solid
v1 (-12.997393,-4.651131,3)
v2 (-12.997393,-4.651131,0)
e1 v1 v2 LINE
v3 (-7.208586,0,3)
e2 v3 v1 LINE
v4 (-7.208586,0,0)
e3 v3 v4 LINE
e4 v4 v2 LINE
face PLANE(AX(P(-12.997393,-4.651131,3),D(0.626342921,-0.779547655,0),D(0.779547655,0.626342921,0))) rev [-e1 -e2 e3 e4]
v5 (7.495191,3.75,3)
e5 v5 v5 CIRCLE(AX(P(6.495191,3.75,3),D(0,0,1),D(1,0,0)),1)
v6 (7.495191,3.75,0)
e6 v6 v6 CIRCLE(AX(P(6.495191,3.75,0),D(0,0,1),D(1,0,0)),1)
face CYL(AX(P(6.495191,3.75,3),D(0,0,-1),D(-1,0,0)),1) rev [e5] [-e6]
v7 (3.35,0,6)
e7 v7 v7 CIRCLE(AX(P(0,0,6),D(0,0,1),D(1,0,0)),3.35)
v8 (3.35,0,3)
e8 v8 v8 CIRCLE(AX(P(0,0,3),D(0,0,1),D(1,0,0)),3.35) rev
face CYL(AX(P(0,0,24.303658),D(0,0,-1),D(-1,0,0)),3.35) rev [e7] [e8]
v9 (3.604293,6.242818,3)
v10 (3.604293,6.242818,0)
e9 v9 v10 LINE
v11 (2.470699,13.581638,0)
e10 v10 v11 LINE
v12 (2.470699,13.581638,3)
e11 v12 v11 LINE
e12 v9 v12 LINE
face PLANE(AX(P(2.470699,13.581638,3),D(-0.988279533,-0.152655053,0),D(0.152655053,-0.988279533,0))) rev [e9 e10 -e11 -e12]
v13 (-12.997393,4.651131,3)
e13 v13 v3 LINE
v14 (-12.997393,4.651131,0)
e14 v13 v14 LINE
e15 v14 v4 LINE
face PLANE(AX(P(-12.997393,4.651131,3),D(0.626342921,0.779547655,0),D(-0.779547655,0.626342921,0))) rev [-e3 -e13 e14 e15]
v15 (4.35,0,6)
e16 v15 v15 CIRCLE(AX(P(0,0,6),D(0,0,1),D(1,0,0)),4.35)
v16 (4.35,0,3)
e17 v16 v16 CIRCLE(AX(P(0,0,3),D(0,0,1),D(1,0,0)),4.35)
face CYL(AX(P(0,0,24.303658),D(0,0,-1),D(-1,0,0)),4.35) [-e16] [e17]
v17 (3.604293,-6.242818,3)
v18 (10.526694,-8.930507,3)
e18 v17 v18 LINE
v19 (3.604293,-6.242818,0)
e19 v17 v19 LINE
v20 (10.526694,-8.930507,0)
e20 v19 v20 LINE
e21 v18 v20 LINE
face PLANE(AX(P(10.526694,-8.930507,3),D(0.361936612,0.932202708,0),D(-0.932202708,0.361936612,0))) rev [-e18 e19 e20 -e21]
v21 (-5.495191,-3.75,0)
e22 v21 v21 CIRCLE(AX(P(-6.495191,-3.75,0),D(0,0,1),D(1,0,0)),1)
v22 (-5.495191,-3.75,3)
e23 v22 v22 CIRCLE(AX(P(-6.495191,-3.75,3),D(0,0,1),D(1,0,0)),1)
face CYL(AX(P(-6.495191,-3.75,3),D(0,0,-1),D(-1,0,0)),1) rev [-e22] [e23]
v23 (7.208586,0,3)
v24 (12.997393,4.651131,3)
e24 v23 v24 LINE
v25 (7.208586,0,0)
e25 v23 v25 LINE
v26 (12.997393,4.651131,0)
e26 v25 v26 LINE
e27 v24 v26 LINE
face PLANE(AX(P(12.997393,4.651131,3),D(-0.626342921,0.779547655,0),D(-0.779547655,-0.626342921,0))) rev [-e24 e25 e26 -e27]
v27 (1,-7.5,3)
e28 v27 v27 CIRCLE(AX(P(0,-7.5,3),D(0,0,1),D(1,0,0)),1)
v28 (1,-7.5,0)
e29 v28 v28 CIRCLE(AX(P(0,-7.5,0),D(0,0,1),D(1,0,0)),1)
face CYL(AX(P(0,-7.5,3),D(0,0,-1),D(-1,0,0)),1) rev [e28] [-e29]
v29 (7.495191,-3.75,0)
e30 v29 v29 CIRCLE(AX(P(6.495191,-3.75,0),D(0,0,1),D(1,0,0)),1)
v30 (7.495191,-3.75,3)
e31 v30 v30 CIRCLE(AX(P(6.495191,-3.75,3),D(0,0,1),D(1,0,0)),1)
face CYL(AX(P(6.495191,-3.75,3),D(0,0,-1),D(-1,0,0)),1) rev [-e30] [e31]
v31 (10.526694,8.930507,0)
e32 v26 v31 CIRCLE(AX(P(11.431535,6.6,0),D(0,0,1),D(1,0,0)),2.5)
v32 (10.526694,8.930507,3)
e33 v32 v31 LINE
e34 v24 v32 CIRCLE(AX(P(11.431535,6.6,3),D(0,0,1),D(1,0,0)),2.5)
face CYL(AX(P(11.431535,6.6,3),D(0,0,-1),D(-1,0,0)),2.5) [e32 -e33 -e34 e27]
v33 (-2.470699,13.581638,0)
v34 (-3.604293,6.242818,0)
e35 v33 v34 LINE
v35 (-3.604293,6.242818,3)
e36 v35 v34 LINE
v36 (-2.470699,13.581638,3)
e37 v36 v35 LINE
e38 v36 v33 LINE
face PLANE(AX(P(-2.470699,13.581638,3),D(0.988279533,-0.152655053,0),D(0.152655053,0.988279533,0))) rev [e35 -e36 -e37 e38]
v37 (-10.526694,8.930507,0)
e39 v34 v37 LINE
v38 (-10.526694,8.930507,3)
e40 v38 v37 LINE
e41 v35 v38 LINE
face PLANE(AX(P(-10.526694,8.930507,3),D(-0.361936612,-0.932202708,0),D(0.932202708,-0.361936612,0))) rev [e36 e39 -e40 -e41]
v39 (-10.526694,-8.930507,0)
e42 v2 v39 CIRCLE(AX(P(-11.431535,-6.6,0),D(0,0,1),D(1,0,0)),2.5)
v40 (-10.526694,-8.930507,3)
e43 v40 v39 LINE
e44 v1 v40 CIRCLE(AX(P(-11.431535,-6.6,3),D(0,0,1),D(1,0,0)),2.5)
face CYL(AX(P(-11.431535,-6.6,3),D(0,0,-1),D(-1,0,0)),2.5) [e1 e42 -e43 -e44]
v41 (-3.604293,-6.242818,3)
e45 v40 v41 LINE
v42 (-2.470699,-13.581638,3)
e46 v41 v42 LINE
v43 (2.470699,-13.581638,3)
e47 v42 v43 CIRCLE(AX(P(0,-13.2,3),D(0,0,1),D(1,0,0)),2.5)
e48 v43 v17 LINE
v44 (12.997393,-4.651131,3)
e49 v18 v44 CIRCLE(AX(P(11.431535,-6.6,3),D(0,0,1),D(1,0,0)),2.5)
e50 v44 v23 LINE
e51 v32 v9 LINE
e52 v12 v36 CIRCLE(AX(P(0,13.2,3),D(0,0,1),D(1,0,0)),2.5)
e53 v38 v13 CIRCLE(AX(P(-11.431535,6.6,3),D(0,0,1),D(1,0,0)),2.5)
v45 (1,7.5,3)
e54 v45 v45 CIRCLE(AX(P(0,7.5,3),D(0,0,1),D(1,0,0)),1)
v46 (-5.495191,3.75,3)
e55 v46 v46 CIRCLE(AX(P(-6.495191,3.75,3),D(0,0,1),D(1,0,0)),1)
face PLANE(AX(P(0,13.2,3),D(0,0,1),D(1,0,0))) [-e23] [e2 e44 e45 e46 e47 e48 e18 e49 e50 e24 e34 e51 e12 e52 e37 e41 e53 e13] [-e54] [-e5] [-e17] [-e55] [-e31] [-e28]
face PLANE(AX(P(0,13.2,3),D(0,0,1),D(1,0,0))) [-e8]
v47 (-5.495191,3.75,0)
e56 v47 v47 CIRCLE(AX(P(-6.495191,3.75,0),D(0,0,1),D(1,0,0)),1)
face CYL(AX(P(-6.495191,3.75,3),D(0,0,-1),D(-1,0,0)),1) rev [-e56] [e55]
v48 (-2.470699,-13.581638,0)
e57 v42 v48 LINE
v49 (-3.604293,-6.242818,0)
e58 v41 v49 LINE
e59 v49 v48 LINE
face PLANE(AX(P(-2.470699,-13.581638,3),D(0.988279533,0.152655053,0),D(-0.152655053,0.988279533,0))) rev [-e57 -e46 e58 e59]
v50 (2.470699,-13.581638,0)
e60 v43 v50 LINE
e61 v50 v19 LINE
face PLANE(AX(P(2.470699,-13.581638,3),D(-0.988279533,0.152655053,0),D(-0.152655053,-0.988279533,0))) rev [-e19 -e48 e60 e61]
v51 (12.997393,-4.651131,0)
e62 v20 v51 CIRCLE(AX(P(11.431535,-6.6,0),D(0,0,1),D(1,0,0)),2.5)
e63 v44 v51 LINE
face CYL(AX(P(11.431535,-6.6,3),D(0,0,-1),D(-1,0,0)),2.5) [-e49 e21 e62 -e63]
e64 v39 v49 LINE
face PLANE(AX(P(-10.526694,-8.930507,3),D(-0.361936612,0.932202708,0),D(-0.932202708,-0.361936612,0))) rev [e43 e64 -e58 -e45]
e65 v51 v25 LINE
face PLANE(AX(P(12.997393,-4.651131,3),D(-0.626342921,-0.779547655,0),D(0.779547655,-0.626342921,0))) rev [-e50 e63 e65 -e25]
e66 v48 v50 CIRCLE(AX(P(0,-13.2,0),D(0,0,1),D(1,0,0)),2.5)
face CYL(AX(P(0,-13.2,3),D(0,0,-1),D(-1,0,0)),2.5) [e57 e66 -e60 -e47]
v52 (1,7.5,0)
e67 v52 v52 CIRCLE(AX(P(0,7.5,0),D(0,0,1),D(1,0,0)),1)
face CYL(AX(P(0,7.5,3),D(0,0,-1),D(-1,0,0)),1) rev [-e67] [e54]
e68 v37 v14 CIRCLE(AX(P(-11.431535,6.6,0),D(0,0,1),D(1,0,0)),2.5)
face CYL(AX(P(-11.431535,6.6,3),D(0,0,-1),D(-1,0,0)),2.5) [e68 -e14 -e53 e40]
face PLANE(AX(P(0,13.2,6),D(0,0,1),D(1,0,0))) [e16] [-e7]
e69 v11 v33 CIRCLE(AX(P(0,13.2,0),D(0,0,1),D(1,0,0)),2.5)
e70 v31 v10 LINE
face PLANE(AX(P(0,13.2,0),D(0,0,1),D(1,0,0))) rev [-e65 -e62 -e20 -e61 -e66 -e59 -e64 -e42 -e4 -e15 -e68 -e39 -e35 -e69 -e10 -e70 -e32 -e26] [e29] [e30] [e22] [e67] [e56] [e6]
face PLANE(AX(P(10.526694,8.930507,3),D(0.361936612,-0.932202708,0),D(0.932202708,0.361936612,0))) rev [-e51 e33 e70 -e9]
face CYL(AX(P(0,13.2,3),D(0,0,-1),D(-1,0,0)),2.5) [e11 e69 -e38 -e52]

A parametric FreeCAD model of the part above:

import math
import FreeCAD as App
import Part
import Sketcher
from FreeCAD import Vector

doc = App.newDocument("Part")
body = doc.addObject("PartDesign::Body", "Body")

# Sketch on XY plane
sketch1 = body.newObject("Sketcher::SketchObject", "Sketch")
sketch1.AttachmentSupport = (doc.getObject("XY_Plane"), [""])
sketch1.MapMode = "FlatFace"
sketch1.addGeometry(Part.LineSegment(Vector(-2.5, 13.6, 0), Vector(-3.6, 6.2, 0)), False)
sketch1.addGeometry(Part.LineSegment(Vector(-3.6, 6.2, 0), Vector(-10.5, 8.9, 0)), False)
sketch1.addGeometry(Part.ArcOfCircle(Part.Circle(Vector(-11.4, 6.6, 0), Vector(0, 0, 1), 2.5), math.radians(69), math.radians(231)), False)
sketch1.addGeometry(Part.LineSegment(Vector(-13, 4.7, 0), Vector(-7.2, 0, 0)), False)
sketch1.addGeometry(Part.LineSegment(Vector(-7.2, 0, 0), Vector(-13, -4.7, 0)), False)
sketch1.addGeometry(Part.ArcOfCircle(Part.Circle(Vector(-11.4, -6.6, 0), Vector(0, 0, 1), 2.5), math.radians(129), math.radians(291)), False)
sketch1.addGeometry(Part.LineSegment(Vector(-10.5, -8.9, 0), Vector(-3.6, -6.2, 0)), False)
sketch1.addGeometry(Part.LineSegment(Vector(-3.6, -6.2, 0), Vector(-2.5, -13.6, 0)), False)
sketch1.addGeometry(Part.ArcOfCircle(Part.Circle(Vector(0, -13.2, 0), Vector(0, 0, 1), 2.5), math.radians(-171), math.radians(-9)), False)
sketch1.addGeometry(Part.LineSegment(Vector(2.5, -13.6, 0), Vector(3.6, -6.2, 0)), False)
sketch1.addGeometry(Part.LineSegment(Vector(3.6, -6.2, 0), Vector(10.5, -8.9, 0)), False)
sketch1.addGeometry(Part.ArcOfCircle(Part.Circle(Vector(11.4, -6.6, 0), Vector(0, 0, 1), 2.5), math.radians(-111), math.radians(51)), False)
sketch1.addGeometry(Part.LineSegment(Vector(13, -4.7, 0), Vector(7.2, 0, 0)), False)
sketch1.addGeometry(Part.LineSegment(Vector(7.2, 0, 0), Vector(13, 4.7, 0)), False)
sketch1.addGeometry(Part.ArcOfCircle(Part.Circle(Vector(11.4, 6.6, 0), Vector(0, 0, 1), 2.5), math.radians(-51), math.radians(111)), False)
sketch1.addGeometry(Part.LineSegment(Vector(10.5, 8.9, 0), Vector(3.6, 6.2, 0)), False)
sketch1.addGeometry(Part.LineSegment(Vector(3.6, 6.2, 0), Vector(2.5, 13.6, 0)), False)
sketch1.addGeometry(Part.ArcOfCircle(Part.Circle(Vector(0, 13.2, 0), Vector(0, 0, 1), 2.5), math.radians(9), math.radians(171)), False)
sketch1.addGeometry(Part.Circle(Vector(-6.5, -3.8, 0), Vector(0, 0, 1), 1), False)
sketch1.addGeometry(Part.Circle(Vector(0, -7.5, 0), Vector(0, 0, 1), 1), False)
sketch1.addGeometry(Part.Circle(Vector(6.5, -3.8, 0), Vector(0, 0, 1), 1), False)
sketch1.addGeometry(Part.Circle(Vector(-6.5, 3.8, 0), Vector(0, 0, 1), 1), False)
sketch1.addGeometry(Part.Circle(Vector(6.5, 3.8, 0), Vector(0, 0, 1), 1), False)
sketch1.addGeometry(Part.Circle(Vector(0, 7.5, 0), Vector(0, 0, 1), 1), False)
sketch1.addConstraint(Sketcher.Constraint("Coincident", 0, 2, 1, 1))
sketch1.addConstraint(Sketcher.Constraint("Tangent", 1, 2, 2, 1))
sketch1.addConstraint(Sketcher.Constraint("Tangent", 2, 2, 3, 1))
sketch1.addConstraint(Sketcher.Constraint("Coincident", 3, 2, 4, 1))
sketch1.addConstraint(Sketcher.Constraint("Tangent", 4, 2, 5, 1))
sketch1.addConstraint(Sketcher.Constraint("Tangent", 5, 2, 6, 1))
sketch1.addConstraint(Sketcher.Constraint("Coincident", 6, 2, 7, 1))
sketch1.addConstraint(Sketcher.Constraint("Tangent", 7, 2, 8, 1))
sketch1.addConstraint(Sketcher.Constraint("Tangent", 8, 2, 9, 1))
sketch1.addConstraint(Sketcher.Constraint("Coincident", 9, 2, 10, 1))
sketch1.addConstraint(Sketcher.Constraint("Tangent", 10, 2, 11, 1))
sketch1.addConstraint(Sketcher.Constraint("Tangent", 11, 2, 12, 1))
sketch1.addConstraint(Sketcher.Constraint("Coincident", 12, 2, 13, 1))
sketch1.addConstraint(Sketcher.Constraint("Tangent", 13, 2, 14, 1))
sketch1.addConstraint(Sketcher.Constraint("Tangent", 14, 2, 15, 1))
sketch1.addConstraint(Sketcher.Constraint("Coincident", 15, 2, 16, 1))
sketch1.addConstraint(Sketcher.Constraint("Tangent", 16, 2, 17, 1))
sketch1.addConstraint(Sketcher.Constraint("Tangent", 17, 2, 0, 1))
sketch1.addConstraint(Sketcher.Constraint("Equal", 2, 5))
sketch1.addConstraint(Sketcher.Constraint("Equal", 5, 8))
sketch1.addConstraint(Sketcher.Constraint("Equal", 8, 11))
sketch1.addConstraint(Sketcher.Constraint("Equal", 11, 14))
sketch1.addConstraint(Sketcher.Constraint("Equal", 14, 17))
sketch1.addConstraint(Sketcher.Constraint("Equal", 18, 19))
sketch1.addConstraint(Sketcher.Constraint("Equal", 19, 20))
sketch1.addConstraint(Sketcher.Constraint("Equal", 20, 21))
sketch1.addConstraint(Sketcher.Constraint("Equal", 21, 22))
sketch1.addConstraint(Sketcher.Constraint("Equal", 22, 23))
sketch1.addConstraint(Sketcher.Constraint("Symmetric", 2, 3, 11, 3, -1, 1))
sketch1.addConstraint(Sketcher.Constraint("Symmetric", 5, 3, 14, 3, -1, 1))
sketch1.addConstraint(Sketcher.Constraint("Symmetric", 8, 3, 17, 3, -1, 1))
sketch1.addConstraint(Sketcher.Constraint("Symmetric", 20, 3, 21, 3, -1, 1))
sketch1.addConstraint(Sketcher.Constraint("Symmetric", 18, 3, 22, 3, -1, 1))
sketch1.addConstraint(Sketcher.Constraint("Symmetric", 19, 3, 23, 3, -1, 1))
sketch1.addConstraint(Sketcher.Constraint("Symmetric", 0, 2, 9, 2, -1, 1))
sketch1.addConstraint(Sketcher.Constraint("Symmetric", 3, 2, 12, 2, -1, 1))
sketch1.addConstraint(Sketcher.Constraint("Symmetric", 6, 2, 15, 2, -1, 1))
sketch1.addConstraint(Sketcher.Constraint("Symmetric", 5, 3, 11, 3, -2))
sketch1.addConstraint(Sketcher.Constraint("Symmetric", 18, 3, 20, 3, -2))
sketch1.addConstraint(Sketcher.Constraint("Symmetric", 7, 2, 8, 2, -2))
sketch1.addConstraint(Sketcher.Constraint("PointOnObject", 19, 3, -2))
sketch1.addConstraint(Sketcher.Constraint("PointOnObject", 3, 2, -1))
sketch1.addConstraint(Sketcher.Constraint("Horizontal", 6, 2, 9, 2))
sketch1.addConstraint(Sketcher.Constraint("Equal", 0, 1))
sketch1.addConstraint(Sketcher.Constraint("Equal", 1, 3))
sketch1.addConstraint(Sketcher.Constraint("Diameter", 18, 2.0))
sketch1.addConstraint(Sketcher.Constraint("Radius", 2, 2.5))
sketch1.addConstraint(Sketcher.Constraint("DistanceY", -1, 1, 2, 3, 6.6))
sketch1.addConstraint(Sketcher.Constraint("DistanceY", 8, 3, -1, 1, 13.2))
sketch1.addConstraint(Sketcher.Constraint("DistanceY", 19, 3, -1, 1, 7.5))
sketch1.addConstraint(Sketcher.Constraint("DistanceY", 18, 3, 21, 3, 7.5))
sketch1.addConstraint(Sketcher.Constraint("DistanceX", 7, 2, -1, 1, 2.470699))
sketch1.addConstraint(Sketcher.Constraint("DistanceX", 1, 2, 0, 2, 6.922401))
sketch1.addConstraint(Sketcher.Constraint("DistanceX", 18, 3, -1, 1, 6.495191))
pad1 = body.newObject("PartDesign::Pad", "Pad")
pad1.Profile = sketch1
pad1.Length = 3

# Sketch on XY plane
sketch2 = body.newObject("Sketcher::SketchObject", "Sketch001")
sketch2.AttachmentSupport = (doc.getObject("XY_Plane"), [""])
sketch2.MapMode = "FlatFace"
sketch2.AttachmentOffset = App.Placement(Vector(0, 0, 3), App.Rotation())
sketch2.addGeometry(Part.Circle(Vector(0, 0, 0), Vector(0, 0, 1), 4.3), False)
sketch2.addGeometry(Part.Circle(Vector(0, 0, 0), Vector(0, 0, 1), 3.4), False)
sketch2.addConstraint(Sketcher.Constraint("Coincident", 0, 3, -1, 1))
sketch2.addConstraint(Sketcher.Constraint("Coincident", 1, 3, -1, 1))
sketch2.addConstraint(Sketcher.Constraint("Diameter", 0, 8.7))
sketch2.addConstraint(Sketcher.Constraint("Diameter", 1, 6.7))
pad2 = body.newObject("PartDesign::Pad", "Pad001")
pad2.Profile = sketch2
pad2.Length = 3

doc.recompute()
